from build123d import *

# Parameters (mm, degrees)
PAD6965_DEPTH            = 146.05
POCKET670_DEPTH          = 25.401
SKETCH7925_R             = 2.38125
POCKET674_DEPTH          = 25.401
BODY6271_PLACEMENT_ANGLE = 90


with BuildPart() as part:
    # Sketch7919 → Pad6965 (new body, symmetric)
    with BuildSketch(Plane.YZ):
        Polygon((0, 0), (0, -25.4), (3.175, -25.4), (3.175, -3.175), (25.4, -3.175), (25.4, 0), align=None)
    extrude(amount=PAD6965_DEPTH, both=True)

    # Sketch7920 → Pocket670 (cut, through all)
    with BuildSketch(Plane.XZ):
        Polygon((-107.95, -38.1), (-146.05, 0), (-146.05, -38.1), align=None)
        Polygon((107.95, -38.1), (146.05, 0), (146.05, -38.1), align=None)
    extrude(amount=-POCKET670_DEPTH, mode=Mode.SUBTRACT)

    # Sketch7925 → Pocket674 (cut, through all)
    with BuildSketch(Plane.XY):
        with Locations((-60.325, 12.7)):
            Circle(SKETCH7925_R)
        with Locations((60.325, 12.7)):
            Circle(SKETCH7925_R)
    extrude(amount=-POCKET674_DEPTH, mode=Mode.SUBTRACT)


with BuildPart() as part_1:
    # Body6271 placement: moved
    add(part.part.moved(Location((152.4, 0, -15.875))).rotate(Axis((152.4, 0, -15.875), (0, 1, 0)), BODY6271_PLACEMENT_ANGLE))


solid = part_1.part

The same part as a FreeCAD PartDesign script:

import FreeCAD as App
import Part
import Sketcher
Q = App.Units.Quantity

doc = App.newDocument("Part")
body = doc.addObject("PartDesign::Body", "Body")

sketch1 = doc.addObject("Sketcher::SketchObject", "Sketch")
body.addObject(sketch1)
sketch1.AttachmentSupport = (doc.YZ_Plane, [""])
sketch1.MapMode = "FlatFace"
sketch1.addGeometry(Part.LineSegment(App.Vector(0, 0, 0), App.Vector(0, -25.4, 0)), False)
sketch1.addGeometry(Part.LineSegment(App.Vector(0, -25.4, 0), App.Vector(3.2, -25.4, 0)), False)
sketch1.addGeometry(Part.LineSegment(App.Vector(3.2, -25.4, 0), App.Vector(3.2, -3.2, 0)), False)
sketch1.addGeometry(Part.LineSegment(App.Vector(3.2, -3.2, 0), App.Vector(25.4, -3.2, 0)), False)
sketch1.addGeometry(Part.LineSegment(App.Vector(25.4, -3.2, 0), App.Vector(25.4, 0, 0)), False)
sketch1.addGeometry(Part.LineSegment(App.Vector(25.4, 0, 0), App.Vector(0, 0, 0)), False)
sketch1.addConstraint(Sketcher.Constraint("Coincident", 0, 2, 1, 1))
sketch1.addConstraint(Sketcher.Constraint("Coincident", 1, 2, 2, 1))
sketch1.addConstraint(Sketcher.Constraint("Coincident", 2, 2, 3, 1))
sketch1.addConstraint(Sketcher.Constraint("Coincident", 3, 2, 4, 1))
sketch1.addConstraint(Sketcher.Constraint("Coincident", 4, 2, 5, 1))
sketch1.addConstraint(Sketcher.Constraint("Coincident", 5, 2, 0, 1))
sketch1.addConstraint(Sketcher.Constraint("Vertical", 0))
sketch1.addConstraint(Sketcher.Constraint("Horizontal", 1))
sketch1.addConstraint(Sketcher.Constraint("Vertical", 2))
sketch1.addConstraint(Sketcher.Constraint("Horizontal", 3))
sketch1.addConstraint(Sketcher.Constraint("Vertical", 4))
sketch1.addConstraint(Sketcher.Constraint("Horizontal", 5))
sketch1.addConstraint(Sketcher.Constraint("Coincident", 5, 2, -1, 1))
sketch1.addConstraint(Sketcher.Constraint("Equal", 5, 0))
sketch1.addConstraint(Sketcher.Constraint("Equal", 3, 2))
sketch1.addConstraint(Sketcher.Constraint("DistanceX", 5, 2, 5, 1, Q("1 in")))
sketch1.addConstraint(Sketcher.Constraint("DistanceX", 1, 1, 1, 2, Q("0.125 in")))
pad1 = doc.addObject("PartDesign::Pad", "Pad")
body.addObject(pad1)
pad1.Profile = sketch1
pad1.Length = Q("11.5 in")
pad1.Midplane = True

sketch2 = doc.addObject("Sketcher::SketchObject", "Sketch001")
body.addObject(sketch2)
sketch2.AttachmentSupport = (doc.XZ_Plane, [""])
sketch2.MapMode = "FlatFace"
sketch2.addGeometry(Part.LineSegment(App.Vector(-108, -38, 0), App.Vector(-146, 0, 0)), False)
sketch2.addGeometry(Part.LineSegment(App.Vector(-146, 0, 0), App.Vector(-146, -38, 0)), False)
sketch2.addGeometry(Part.LineSegment(App.Vector(-146, -38, 0), App.Vector(-108, -38, 0)), False)
sketch2.addGeometry(Part.LineSegment(App.Vector(146, 0, 0), App.Vector(108, -38, 0)), False)
sketch2.addGeometry(Part.LineSegment(App.Vector(108, -38, 0), App.Vector(146, -38, 0)), False)
sketch2.addGeometry(Part.LineSegment(App.Vector(146, -38, 0), App.Vector(146, 0, 0)), False)
sketch2.addConstraint(Sketcher.Constraint("Coincident", 0, 2, 1, 1))
sketch2.addConstraint(Sketcher.Constraint("Coincident", 1, 2, 2, 1))
sketch2.addConstraint(Sketcher.Constraint("Coincident", 2, 2, 0, 1))
sketch2.addConstraint(Sketcher.Constraint("Coincident", 3, 2, 4, 1))
sketch2.addConstraint(Sketcher.Constraint("Coincident", 4, 2, 5, 1))
sketch2.addConstraint(Sketcher.Constraint("Coincident", 5, 2, 3, 1))
sketch2.addConstraint(Sketcher.Constraint("Vertical", 1))
sketch2.addConstraint(Sketcher.Constraint("Horizontal", 2))
sketch2.addConstraint(Sketcher.Constraint("Horizontal", 4))
sketch2.addConstraint(Sketcher.Constraint("Vertical", 5))
sketch2.addConstraint(Sketcher.Constraint("Symmetric", 0, 2, 5, 2, -1, 1))
sketch2.addConstraint(Sketcher.Constraint("Symmetric", 2, 2, 3, 2, -2))
sketch2.addConstraint(Sketcher.Constraint("PointOnObject", 0, 2, -1))
sketch2.addConstraint(Sketcher.Constraint("Perpendicular", 0, 3))
sketch2.addConstraint(Sketcher.Constraint("DistanceX", 2, 1, 2, 2, Q("1.5 in")))
sketch2.addConstraint(Sketcher.Constraint("DistanceX", 1, 2, 3, 2, Q("10 in")))
pocket1 = doc.addObject("PartDesign::Pocket", "Pocket")
body.addObject(pocket1)
pocket1.Profile = sketch2
pocket1.Type = "ThroughAll"

sketch3 = doc.addObject("Sketcher::SketchObject", "Sketch002")
body.addObject(sketch3)
sketch3.AttachmentSupport = (doc.XY_Plane, [""])
sketch3.MapMode = "FlatFace"
sketch3.addGeometry(Part.Circle(App.Vector(-60.3, 12.7, 0), App.Vector(0, 0, 1), 2.4), False)
sketch3.addGeometry(Part.Circle(App.Vector(60.3, 12.7, 0), App.Vector(0, 0, 1), 2.4), False)
sketch3.addConstraint(Sketcher.Constraint("Equal", 0, 1))
sketch3.addConstraint(Sketcher.Constraint("Symmetric", 0, 3, 1, 3, -2))
sketch3.addConstraint(Sketcher.Constraint("Diameter", 0, Q("0.1875 in")))
sketch3.addConstraint(Sketcher.Constraint("DistanceY", -1, 1, 0, 3, Q("0.5 in")))
sketch3.addConstraint(Sketcher.Constraint("DistanceX", 0, 3, 1, 3, Q("4.75 in")))
pocket2 = doc.addObject("PartDesign::Pocket", "Pocket001")
body.addObject(pocket2)
pocket2.Profile = sketch3
pocket2.Type = "ThroughAll"
body2 = doc.addObject("PartDesign::Body", "Body001")
doc.recompute()

body.Placement = App.Placement(App.Vector(152.4, 0, -15.875), App.Rotation(App.Vector(0, 1, 0), 90))
boolean = doc.addObject("PartDesign::Boolean", "Boolean")
body2.addObject(boolean)
boolean.Type = "Fuse"
boolean.addObjects([body])

doc.recompute()
